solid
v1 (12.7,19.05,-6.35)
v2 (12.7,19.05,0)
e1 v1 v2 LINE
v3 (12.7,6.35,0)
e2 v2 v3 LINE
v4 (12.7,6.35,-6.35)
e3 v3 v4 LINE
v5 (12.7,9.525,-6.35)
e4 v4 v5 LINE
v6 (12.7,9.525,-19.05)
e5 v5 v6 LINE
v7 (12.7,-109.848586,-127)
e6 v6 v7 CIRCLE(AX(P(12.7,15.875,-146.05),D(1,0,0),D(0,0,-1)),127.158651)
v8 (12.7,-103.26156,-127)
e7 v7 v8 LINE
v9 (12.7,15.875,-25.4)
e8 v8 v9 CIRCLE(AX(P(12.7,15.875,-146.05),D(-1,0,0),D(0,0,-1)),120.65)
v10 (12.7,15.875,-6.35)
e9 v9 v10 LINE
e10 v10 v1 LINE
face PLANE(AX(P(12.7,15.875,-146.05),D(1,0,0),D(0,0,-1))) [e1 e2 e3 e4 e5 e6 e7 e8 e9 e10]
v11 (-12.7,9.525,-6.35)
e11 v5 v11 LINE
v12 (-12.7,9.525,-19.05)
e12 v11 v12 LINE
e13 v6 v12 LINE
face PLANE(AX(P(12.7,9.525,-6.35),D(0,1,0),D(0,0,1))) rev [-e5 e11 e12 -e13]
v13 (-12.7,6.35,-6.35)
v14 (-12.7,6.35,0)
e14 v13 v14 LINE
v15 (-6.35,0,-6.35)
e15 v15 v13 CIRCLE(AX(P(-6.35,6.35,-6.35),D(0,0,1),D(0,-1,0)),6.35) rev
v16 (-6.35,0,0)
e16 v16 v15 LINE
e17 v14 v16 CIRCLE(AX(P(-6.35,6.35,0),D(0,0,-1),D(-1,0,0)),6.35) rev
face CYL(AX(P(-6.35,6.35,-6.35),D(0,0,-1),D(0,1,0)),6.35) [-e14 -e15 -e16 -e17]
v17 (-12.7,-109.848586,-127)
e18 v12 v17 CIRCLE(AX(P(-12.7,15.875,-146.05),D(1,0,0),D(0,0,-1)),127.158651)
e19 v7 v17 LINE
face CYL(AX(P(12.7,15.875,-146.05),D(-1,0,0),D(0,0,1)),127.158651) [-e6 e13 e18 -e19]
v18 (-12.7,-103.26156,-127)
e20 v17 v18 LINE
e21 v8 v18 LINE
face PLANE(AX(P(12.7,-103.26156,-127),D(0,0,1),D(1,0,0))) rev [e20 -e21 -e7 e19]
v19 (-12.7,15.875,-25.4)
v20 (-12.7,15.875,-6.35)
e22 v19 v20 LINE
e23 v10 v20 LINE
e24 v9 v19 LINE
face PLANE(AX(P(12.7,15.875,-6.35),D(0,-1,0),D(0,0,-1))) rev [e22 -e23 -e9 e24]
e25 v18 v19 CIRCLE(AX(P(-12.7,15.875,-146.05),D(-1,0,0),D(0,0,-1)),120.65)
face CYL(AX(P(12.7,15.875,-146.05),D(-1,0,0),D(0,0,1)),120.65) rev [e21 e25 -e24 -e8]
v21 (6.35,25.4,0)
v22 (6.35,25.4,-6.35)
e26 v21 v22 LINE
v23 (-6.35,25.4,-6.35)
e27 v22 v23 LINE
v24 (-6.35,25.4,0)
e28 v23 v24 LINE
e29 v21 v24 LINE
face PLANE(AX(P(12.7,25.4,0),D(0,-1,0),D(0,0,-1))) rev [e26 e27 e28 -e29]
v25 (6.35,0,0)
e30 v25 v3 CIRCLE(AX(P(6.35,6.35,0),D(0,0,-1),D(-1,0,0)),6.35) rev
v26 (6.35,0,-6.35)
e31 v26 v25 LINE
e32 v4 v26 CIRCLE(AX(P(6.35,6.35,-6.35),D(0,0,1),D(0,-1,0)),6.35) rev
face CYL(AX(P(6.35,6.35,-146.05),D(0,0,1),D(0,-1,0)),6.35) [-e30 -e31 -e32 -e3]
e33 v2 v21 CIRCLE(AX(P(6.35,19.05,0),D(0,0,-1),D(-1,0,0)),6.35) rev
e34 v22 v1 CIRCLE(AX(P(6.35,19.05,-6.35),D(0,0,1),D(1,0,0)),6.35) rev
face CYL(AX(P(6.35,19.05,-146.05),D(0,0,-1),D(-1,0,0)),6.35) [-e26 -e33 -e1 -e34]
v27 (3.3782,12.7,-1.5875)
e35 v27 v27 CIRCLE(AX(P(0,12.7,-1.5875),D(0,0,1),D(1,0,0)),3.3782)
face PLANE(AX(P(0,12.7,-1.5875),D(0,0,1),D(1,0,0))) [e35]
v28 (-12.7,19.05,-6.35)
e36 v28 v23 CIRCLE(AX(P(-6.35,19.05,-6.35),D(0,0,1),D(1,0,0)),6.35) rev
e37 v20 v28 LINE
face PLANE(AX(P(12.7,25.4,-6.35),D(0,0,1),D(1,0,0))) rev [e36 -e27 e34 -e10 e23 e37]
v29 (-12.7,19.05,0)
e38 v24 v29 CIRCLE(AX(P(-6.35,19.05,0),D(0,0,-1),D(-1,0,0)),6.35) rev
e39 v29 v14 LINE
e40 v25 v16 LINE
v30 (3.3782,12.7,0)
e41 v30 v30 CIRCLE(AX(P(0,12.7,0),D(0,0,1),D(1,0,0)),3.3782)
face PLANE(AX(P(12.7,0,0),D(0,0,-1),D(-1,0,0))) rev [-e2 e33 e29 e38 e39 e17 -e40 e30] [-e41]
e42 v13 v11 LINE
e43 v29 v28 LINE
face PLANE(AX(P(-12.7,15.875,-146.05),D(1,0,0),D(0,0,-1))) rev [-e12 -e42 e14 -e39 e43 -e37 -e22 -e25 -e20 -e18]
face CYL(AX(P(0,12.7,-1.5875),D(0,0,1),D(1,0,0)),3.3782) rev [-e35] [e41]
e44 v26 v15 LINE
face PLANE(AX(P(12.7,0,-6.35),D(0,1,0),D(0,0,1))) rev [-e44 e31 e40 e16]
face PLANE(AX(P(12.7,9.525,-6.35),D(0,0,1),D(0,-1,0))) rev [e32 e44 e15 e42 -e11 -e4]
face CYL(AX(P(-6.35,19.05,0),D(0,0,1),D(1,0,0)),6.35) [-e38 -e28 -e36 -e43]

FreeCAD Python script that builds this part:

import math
import FreeCAD as App
import Part
import Sketcher
from FreeCAD import Vector
Q = App.Units.Quantity


def edges_at(feature, points):
    """Names of the edges that pass closest to the given points."""
    edges = feature.Shape.Edges
    near = lambda p: min(range(len(edges)), key=lambda i: edges[i].distToShape(Part.Vertex(*p))[0])
    return sorted({f"Edge{near(p) + 1}" for p in points})

doc = App.newDocument("Part")
body = doc.addObject("PartDesign::Body", "Body")

# Sketch on YZ plane
sketch1 = body.newObject("Sketcher::SketchObject", "Sketch")
sketch1.AttachmentSupport = (doc.getObject("YZ_Plane"), [""])
sketch1.MapMode = "FlatFace"
sketch1.addGeometry([
    Part.LineSegment(Vector(25.4, 0, 0), Vector(0, 0, 0)),  # 0
    Part.LineSegment(Vector(0, 0, 0), Vector(0, -6.35, 0)),  # 1
    Part.LineSegment(Vector(0, -6.35, 0), Vector(9.525, -6.35, 0)),  # 2
    Part.LineSegment(Vector(9.525, -6.35, 0), Vector(9.525, -19.05, 0)),  # 3
    Part.ArcOfCircle(Part.Circle(Vector(15.875, -146.05, 0), Vector(0, 0, 1), 127.158651), math.radians(92.862405), math.radians(171.383919)),  # 4
    Part.LineSegment(Vector(-109.848586, -127, 0), Vector(-103.26156, -127, 0)),  # 5
    Part.ArcOfCircle(Part.Circle(Vector(15.875, -146.05, 0), Vector(0, 0, 1), 120.65), math.radians(90), math.radians(170.91528)),  # 6
    Part.LineSegment(Vector(15.875, -25.4, 0), Vector(15.875, -6.35, 0)),  # 7
    Part.LineSegment(Vector(15.875, -6.35, 0), Vector(25.4, -6.35, 0)),  # 8
    Part.LineSegment(Vector(25.4, -6.35, 0), Vector(25.4, 0, 0)),  # 9
], False)
sketch1.addConstraint([
    Sketcher.Constraint("Coincident", 0, 2, 1, 1),
    Sketcher.Constraint("Coincident", 1, 2, 2, 1),
    Sketcher.Constraint("Coincident", 2, 2, 3, 1),
    Sketcher.Constraint("Coincident", 3, 2, 4, 1),
    Sketcher.Constraint("Coincident", 4, 2, 5, 1),
    Sketcher.Constraint("Coincident", 5, 2, 6, 2),
    Sketcher.Constraint("Coincident", 6, 1, 7, 1),
    Sketcher.Constraint("Coincident", 7, 2, 8, 1),
    Sketcher.Constraint("Coincident", 8, 2, 9, 1),
    Sketcher.Constraint("Coincident", 9, 2, 0, 1),
    Sketcher.Constraint("Horizontal", 0),
    Sketcher.Constraint("Vertical", 1),
    Sketcher.Constraint("Horizontal", 2),
    Sketcher.Constraint("Vertical", 3),
    Sketcher.Constraint("Horizontal", 5),
    Sketcher.Constraint("Vertical", 7),
    Sketcher.Constraint("Horizontal", 8),
    Sketcher.Constraint("Vertical", 9),
    Sketcher.Constraint("Coincident", 0, 2, -1, 1),
    Sketcher.Constraint("Coincident", 6, 3, 4, 3),
    Sketcher.Constraint("Horizontal", 2, 2, 7, 2),
    Sketcher.Constraint("Vertical", 4, 3, 6, 1),
    Sketcher.Constraint("Equal", 2, 8),
    Sketcher.Constraint("DistanceX", 0, 2, 0, 1, Q("1 in")),
    Sketcher.Constraint("Radius", 6, Q("4.75 in")),
    Sketcher.Constraint("DistanceY", 3, 2, 3, 1, Q("0.5 in")),
    Sketcher.Constraint("DistanceY", 4, 2, -1, 1, Q("5 in")),
    Sketcher.Constraint("DistanceY", 6, 1, -1, 1, Q("1 in")),
    Sketcher.Constraint("DistanceY", 4, 3, 3, 2, Q("5 in")),
    Sketcher.Constraint("DistanceX", 2, 1, 2, 2, Q("0.375 in")),
])
pad1 = body.newObject("PartDesign::Pad", "Pad")
pad1.Profile = sketch1
pad1.Length = Q("1 in")
pad1.Midplane = True

# Sketch on XY plane
sketch2 = body.newObject("Sketcher::SketchObject", "Sketch001")
sketch2.AttachmentSupport = (doc.getObject("XY_Plane"), [""])
sketch2.MapMode = "FlatFace"
sketch2.addGeometry(Part.Circle(Vector(0, 12.7, 0), Vector(0, 0, 1), 3.3782), False)
sketch2.addConstraint([
    Sketcher.Constraint("PointOnObject", 0, 3, -2),
    Sketcher.Constraint("Diameter", 0, Q("0.266 in")),
    Sketcher.Constraint("DistanceY", -1, 1, 0, 3, Q("0.5 in")),
])
pocket1 = body.newObject("PartDesign::Pocket", "Pocket")
pocket1.Profile = sketch2
pocket1.Length = Q("0.0625 in")
doc.recompute()

fillet = body.newObject("PartDesign::Fillet", "Fillet")
fillet.Base = (pocket1, edges_at(pocket1, [
    (-12.7, 25.4, -3.175),
    (-12.7, 0, -3.175),
    (12.7, 25.4, -3.175),
    (12.7, 0, -3.175),
]))
fillet.Radius = Q("0.25 in")

doc.recompute()
